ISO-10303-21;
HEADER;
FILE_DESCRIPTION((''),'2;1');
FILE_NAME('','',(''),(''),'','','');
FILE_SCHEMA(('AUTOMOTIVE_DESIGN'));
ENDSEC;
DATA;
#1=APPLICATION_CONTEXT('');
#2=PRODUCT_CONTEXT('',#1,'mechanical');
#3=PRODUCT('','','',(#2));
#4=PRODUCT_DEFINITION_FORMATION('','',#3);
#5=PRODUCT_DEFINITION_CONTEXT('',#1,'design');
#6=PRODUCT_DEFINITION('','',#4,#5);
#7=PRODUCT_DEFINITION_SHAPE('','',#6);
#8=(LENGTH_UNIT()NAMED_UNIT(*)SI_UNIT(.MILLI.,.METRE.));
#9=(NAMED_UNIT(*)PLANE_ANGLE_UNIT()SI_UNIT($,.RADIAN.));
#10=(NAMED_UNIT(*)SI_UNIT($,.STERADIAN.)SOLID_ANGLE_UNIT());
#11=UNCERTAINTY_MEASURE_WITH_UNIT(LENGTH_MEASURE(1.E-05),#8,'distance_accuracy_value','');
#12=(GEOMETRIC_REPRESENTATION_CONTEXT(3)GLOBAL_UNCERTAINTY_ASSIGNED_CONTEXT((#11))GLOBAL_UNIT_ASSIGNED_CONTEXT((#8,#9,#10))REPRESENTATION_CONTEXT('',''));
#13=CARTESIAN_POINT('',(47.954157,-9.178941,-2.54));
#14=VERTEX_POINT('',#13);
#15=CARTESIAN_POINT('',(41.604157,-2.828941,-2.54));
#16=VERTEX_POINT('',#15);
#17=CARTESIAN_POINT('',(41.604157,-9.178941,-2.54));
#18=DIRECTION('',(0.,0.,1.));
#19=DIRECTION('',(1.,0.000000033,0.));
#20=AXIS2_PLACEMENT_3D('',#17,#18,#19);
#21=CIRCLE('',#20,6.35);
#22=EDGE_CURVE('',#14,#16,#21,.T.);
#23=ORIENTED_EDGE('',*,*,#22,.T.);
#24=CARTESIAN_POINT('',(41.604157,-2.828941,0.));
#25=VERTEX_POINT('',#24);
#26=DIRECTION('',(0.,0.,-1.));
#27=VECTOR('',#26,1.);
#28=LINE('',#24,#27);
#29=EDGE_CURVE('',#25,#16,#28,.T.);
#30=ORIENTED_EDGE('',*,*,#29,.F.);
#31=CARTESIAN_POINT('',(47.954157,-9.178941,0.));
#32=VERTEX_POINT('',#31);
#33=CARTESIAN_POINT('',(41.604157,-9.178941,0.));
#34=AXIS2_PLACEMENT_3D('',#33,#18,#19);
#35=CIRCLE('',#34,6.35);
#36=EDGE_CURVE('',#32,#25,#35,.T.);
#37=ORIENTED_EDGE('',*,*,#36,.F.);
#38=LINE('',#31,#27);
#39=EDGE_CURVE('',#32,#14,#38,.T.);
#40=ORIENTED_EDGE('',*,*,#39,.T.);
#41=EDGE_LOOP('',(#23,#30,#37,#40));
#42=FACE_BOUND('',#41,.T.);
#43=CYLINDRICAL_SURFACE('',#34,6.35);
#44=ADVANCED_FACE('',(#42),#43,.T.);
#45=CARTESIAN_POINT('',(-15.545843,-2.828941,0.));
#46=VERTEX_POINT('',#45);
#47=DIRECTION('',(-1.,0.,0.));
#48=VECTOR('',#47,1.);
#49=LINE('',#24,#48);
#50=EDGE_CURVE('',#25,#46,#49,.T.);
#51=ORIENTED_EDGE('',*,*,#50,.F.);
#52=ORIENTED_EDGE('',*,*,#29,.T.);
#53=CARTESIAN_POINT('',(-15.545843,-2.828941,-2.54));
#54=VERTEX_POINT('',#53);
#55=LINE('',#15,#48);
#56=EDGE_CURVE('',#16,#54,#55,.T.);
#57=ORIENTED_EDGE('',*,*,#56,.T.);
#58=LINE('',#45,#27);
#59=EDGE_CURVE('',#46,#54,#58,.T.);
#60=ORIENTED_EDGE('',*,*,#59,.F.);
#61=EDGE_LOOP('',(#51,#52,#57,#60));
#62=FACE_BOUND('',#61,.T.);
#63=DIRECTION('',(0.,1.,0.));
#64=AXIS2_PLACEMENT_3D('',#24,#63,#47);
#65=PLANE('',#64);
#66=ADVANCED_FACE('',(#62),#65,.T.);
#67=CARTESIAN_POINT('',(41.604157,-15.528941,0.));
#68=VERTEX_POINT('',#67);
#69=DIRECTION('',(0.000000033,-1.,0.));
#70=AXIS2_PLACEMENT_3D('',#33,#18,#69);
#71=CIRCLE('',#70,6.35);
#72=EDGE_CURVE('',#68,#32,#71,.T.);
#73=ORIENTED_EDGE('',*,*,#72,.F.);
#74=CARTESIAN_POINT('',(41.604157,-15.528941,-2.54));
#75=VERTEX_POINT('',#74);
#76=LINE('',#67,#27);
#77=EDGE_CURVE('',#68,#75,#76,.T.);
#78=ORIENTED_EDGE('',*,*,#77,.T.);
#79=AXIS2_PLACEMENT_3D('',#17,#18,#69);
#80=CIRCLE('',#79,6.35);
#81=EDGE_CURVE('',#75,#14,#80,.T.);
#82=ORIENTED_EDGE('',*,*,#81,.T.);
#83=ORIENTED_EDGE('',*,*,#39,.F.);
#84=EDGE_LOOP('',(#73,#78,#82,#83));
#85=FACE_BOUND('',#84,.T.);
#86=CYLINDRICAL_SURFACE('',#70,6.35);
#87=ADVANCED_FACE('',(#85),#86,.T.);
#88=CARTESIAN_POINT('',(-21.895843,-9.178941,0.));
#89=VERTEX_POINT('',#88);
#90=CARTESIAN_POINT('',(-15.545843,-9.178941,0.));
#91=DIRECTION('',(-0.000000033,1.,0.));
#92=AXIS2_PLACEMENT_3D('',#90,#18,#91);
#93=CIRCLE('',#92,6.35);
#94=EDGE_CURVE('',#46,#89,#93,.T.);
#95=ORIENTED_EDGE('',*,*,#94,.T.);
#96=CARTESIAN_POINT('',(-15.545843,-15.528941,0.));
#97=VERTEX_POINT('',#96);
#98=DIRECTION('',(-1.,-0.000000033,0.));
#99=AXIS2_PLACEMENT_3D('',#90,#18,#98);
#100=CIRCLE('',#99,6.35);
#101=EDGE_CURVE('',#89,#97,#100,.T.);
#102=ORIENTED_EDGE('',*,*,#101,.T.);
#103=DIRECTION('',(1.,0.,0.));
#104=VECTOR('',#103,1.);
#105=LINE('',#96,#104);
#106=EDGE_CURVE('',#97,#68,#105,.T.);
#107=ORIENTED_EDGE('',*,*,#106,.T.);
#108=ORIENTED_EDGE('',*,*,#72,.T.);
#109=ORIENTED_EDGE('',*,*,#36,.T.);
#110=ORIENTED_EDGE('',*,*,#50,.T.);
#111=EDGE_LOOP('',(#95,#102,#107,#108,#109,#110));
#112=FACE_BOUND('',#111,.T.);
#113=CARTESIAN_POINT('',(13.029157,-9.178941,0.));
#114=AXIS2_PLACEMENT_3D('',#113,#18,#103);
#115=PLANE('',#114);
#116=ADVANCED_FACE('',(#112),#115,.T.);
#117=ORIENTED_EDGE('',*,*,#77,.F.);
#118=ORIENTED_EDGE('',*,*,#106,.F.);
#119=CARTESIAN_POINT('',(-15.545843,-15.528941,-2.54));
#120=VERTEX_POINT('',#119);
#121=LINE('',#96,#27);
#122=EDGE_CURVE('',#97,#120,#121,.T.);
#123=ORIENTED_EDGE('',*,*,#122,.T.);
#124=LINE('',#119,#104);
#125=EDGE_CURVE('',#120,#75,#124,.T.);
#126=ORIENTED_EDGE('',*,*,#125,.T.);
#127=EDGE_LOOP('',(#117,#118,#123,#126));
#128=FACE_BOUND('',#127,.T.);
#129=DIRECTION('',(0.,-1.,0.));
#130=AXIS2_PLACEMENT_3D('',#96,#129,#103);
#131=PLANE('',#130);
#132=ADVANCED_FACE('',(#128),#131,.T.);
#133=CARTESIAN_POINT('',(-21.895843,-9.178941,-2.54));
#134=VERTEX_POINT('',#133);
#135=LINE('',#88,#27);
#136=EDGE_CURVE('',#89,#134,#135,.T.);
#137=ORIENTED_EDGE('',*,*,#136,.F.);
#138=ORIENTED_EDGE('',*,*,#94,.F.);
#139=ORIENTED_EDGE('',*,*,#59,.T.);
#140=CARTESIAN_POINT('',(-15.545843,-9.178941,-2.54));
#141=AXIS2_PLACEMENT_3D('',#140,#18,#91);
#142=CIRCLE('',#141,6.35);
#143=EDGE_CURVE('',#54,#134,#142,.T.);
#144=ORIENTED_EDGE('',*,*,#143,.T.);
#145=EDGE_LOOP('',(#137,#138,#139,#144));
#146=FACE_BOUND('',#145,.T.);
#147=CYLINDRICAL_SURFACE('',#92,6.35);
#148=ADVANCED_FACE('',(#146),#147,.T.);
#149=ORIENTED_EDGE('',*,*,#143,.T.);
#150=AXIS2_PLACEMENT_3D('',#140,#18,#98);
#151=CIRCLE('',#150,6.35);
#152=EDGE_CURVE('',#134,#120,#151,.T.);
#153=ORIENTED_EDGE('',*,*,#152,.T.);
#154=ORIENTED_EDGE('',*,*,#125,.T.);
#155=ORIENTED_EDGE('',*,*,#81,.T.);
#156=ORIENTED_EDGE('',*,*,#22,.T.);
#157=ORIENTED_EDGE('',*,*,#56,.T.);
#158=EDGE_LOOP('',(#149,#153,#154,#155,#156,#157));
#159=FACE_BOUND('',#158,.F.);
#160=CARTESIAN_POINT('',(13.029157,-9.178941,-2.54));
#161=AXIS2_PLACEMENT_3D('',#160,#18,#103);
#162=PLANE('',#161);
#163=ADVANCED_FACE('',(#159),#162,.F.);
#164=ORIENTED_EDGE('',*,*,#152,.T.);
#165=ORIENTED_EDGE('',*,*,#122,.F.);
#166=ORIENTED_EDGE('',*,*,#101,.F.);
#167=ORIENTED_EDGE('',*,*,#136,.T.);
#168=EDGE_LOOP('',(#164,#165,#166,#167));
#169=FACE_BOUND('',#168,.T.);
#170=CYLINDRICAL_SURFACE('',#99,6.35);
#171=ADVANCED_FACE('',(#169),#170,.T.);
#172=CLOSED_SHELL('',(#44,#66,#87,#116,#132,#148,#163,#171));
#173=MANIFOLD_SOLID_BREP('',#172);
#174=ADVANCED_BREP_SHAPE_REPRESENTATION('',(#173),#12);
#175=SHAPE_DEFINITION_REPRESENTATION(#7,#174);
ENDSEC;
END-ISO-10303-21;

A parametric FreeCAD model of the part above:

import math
import FreeCAD as App
import Part
import Sketcher

V = App.Vector
Q = App.Units.Quantity

doc = App.newDocument("Part")
body = doc.addObject("PartDesign::Body", "Body")

sketch1 = body.newObject("Sketcher::SketchObject", "Sketch")
sketch1.AttachmentSupport = (doc.getObject("XY_Plane"), [""])
sketch1.MapMode = "FlatFace"
sketch1.addGeometry([
    Part.LineSegment(V(42, -3, 0), V(-16, -3, 0)),
    Part.ArcOfCircle(Part.Circle(V(-16, -9, 0), V(0, 0, 1), 6), math.radians(90), math.radians(180)),
    Part.ArcOfCircle(Part.Circle(V(-16, -9, 0), V(0, 0, 1), 6), math.radians(-180), math.radians(-90)),
    Part.LineSegment(V(-16, -16, 0), V(42, -16, 0)),
    Part.ArcOfCircle(Part.Circle(V(42, -9, 0), V(0, 0, 1), 6), math.radians(-90), math.radians(0)),
    Part.ArcOfCircle(Part.Circle(V(42, -9, 0), V(0, 0, 1), 6), math.radians(0), math.radians(90)),
], False)
sketch1.addConstraint([
    Sketcher.Constraint("Tangent", 0, 2, 1, 1),
    Sketcher.Constraint("Tangent", 1, 2, 2, 1),
    Sketcher.Constraint("Tangent", 2, 2, 3, 1),
    Sketcher.Constraint("Tangent", 3, 2, 4, 1),
    Sketcher.Constraint("Tangent", 4, 2, 5, 1),
    Sketcher.Constraint("Tangent", 5, 2, 0, 1),
    Sketcher.Constraint("Horizontal", 0),
    Sketcher.Constraint("Horizontal", 3),
    Sketcher.Constraint("Equal", 1, 2),
    Sketcher.Constraint("Equal", 2, 4),
    Sketcher.Constraint("Horizontal", 5, 3, 1, 2),
    Sketcher.Constraint("Horizontal", 1, 2, 4, 2),
    Sketcher.Constraint("Radius", 1, Q("0.25 in")),
    Sketcher.Constraint("DistanceX", 0, 2, 0, 1, Q("2.25 in")),
    Sketcher.Constraint("DistanceY", 1, 3, -1, 1, Q("9.178941 mm")),
    Sketcher.Constraint("DistanceX", 1, 3, -1, 1, Q("15.545843 mm")),
])
pad1 = body.newObject("PartDesign::Pad", "Pad")
pad1.Profile = sketch1
pad1.Length = Q("0.1 in")
pad1.Reversed = True

doc.recompute()
